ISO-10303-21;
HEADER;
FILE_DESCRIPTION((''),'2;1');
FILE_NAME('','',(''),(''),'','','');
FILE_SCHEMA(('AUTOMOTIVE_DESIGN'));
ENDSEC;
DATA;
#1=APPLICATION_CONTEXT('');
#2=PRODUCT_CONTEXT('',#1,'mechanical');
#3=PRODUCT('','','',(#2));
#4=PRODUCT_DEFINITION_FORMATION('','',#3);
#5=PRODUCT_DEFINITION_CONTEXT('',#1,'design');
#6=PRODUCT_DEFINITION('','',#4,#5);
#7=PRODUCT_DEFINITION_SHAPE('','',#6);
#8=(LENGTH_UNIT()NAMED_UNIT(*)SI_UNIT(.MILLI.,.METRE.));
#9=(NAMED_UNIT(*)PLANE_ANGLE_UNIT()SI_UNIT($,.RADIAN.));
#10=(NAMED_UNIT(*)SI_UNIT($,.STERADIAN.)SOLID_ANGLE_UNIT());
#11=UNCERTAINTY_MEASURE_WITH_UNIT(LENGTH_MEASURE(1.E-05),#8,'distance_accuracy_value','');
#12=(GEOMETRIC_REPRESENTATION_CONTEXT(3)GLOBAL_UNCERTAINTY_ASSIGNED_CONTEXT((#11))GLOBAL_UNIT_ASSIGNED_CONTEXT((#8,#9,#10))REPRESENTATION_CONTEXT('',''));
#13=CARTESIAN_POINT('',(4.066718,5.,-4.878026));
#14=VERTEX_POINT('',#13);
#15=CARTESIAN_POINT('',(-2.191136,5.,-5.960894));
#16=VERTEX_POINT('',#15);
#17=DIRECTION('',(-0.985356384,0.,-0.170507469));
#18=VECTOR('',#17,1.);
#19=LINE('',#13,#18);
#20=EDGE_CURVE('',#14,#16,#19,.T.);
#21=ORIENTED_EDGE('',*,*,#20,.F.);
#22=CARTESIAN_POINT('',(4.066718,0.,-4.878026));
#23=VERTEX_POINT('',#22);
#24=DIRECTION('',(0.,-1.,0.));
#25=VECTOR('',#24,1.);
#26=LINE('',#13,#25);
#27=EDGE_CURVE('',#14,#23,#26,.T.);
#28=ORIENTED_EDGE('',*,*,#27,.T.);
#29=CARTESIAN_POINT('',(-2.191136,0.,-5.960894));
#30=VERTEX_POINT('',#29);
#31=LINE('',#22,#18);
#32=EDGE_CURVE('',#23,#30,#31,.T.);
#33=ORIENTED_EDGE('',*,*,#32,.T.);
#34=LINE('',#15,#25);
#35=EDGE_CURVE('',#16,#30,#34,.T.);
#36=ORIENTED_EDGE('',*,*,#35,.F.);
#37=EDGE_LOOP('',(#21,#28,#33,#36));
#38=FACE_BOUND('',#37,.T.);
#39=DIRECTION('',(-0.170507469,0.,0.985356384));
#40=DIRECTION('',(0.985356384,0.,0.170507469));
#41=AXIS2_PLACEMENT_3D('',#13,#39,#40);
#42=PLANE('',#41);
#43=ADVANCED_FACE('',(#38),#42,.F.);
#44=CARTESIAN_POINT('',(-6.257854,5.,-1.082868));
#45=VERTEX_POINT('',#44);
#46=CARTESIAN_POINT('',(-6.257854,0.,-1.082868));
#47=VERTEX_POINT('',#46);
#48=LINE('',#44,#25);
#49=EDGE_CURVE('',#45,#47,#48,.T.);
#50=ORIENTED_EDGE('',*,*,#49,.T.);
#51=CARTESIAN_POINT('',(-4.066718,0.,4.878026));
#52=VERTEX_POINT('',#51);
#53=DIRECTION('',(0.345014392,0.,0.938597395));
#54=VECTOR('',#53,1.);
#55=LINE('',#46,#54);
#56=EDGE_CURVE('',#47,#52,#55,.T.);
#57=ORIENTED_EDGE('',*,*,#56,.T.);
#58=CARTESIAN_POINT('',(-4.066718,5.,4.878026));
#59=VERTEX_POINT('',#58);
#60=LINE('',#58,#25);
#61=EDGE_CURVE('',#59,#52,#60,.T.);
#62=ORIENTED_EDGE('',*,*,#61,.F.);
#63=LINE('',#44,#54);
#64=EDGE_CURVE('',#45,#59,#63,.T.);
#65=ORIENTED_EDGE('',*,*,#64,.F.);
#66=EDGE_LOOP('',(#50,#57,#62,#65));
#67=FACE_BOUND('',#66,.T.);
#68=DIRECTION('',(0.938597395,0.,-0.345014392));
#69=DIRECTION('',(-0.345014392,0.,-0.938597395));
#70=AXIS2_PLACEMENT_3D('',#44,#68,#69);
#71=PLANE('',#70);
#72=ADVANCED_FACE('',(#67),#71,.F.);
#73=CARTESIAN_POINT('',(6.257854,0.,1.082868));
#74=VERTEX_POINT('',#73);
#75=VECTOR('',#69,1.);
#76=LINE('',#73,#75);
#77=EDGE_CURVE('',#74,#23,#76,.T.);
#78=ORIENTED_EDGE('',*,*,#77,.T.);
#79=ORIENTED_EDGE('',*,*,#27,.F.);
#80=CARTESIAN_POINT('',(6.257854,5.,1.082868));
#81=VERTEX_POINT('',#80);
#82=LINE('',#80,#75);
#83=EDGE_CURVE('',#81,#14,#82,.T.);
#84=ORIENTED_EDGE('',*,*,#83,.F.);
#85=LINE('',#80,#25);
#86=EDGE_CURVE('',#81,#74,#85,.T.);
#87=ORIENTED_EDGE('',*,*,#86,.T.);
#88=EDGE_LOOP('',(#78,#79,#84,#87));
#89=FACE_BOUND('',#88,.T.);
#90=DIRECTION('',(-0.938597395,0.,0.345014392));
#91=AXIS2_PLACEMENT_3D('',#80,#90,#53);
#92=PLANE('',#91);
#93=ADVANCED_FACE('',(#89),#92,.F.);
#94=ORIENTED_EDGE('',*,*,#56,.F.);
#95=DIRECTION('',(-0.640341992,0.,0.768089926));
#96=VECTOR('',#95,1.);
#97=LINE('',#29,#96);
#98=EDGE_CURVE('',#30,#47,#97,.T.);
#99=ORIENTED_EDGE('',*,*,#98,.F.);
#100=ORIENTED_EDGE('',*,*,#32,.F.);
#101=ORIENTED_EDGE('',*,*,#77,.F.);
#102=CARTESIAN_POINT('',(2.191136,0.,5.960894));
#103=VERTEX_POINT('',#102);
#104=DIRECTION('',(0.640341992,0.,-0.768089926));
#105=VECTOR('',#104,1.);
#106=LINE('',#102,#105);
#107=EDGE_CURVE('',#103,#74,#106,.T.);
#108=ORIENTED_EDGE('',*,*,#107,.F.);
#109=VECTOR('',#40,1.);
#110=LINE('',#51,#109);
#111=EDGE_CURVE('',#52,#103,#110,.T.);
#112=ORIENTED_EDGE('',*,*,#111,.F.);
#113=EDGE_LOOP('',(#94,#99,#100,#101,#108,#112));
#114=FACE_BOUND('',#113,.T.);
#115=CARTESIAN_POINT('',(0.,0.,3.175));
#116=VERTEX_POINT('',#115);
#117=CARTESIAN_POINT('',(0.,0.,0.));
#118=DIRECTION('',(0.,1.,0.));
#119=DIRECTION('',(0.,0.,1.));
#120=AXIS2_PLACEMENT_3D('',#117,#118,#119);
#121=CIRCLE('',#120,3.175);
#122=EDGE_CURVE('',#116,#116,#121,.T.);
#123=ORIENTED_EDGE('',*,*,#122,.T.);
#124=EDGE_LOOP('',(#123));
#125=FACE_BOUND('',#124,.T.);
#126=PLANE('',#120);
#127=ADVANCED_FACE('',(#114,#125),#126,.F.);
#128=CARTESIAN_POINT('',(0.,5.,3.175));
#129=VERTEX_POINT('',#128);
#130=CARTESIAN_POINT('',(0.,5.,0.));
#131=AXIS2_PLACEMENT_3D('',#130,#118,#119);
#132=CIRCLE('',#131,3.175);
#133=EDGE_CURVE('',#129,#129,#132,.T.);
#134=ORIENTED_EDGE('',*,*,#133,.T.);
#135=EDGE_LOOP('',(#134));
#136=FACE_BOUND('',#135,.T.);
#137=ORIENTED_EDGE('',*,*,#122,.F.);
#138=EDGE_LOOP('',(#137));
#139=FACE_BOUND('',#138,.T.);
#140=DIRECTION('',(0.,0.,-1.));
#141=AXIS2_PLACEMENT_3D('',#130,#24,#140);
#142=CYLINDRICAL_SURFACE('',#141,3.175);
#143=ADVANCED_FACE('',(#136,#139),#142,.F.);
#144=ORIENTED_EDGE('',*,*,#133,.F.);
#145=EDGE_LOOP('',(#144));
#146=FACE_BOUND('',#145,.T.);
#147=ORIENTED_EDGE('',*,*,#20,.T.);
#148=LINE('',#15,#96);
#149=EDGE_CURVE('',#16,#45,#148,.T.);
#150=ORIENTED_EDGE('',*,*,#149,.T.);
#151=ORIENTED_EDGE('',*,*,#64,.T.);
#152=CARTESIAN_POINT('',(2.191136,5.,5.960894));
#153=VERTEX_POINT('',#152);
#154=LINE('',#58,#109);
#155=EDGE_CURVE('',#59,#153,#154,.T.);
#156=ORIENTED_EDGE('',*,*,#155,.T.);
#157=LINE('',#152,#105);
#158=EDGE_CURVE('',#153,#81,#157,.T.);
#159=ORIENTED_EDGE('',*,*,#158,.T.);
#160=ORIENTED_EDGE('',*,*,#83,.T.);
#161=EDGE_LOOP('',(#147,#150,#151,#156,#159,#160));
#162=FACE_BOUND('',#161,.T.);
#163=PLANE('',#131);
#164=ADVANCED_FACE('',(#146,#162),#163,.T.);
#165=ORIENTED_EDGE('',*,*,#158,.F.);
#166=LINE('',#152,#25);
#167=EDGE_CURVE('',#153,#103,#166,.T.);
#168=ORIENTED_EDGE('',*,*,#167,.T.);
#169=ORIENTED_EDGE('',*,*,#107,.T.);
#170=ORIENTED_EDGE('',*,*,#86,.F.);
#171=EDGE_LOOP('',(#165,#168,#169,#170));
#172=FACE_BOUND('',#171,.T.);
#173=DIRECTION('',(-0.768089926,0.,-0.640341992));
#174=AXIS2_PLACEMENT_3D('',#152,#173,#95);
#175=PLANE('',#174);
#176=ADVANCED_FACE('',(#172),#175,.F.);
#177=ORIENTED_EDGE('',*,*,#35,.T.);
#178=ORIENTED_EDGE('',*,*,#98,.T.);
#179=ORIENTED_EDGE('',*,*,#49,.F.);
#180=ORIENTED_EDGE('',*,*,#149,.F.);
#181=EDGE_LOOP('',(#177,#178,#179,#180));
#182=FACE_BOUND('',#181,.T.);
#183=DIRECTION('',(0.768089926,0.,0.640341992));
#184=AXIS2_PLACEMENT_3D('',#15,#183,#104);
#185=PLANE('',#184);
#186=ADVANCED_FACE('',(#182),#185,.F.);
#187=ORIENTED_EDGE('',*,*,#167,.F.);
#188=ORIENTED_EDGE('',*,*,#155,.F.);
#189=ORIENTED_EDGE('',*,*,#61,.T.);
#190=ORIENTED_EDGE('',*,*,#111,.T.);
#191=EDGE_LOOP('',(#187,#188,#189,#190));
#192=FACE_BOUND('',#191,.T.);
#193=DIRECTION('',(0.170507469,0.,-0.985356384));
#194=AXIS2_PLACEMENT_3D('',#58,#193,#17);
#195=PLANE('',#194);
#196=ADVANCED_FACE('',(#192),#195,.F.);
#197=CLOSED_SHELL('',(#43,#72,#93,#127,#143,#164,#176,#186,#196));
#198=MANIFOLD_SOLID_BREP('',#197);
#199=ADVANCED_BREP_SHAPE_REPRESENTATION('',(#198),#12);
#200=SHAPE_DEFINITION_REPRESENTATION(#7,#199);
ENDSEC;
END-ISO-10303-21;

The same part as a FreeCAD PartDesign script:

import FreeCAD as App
import Part
import Sketcher

V = App.Vector
Q = App.Units.Quantity


def add_polygon(sketch, points):
    """Adds a closed chain of lines whose ends are joined by coincident constraints."""
    first, n = sketch.GeometryCount, len(points)
    for a, b in zip(points, points[1:] + points[:1]):
        sketch.addGeometry(Part.LineSegment(App.Vector(*a, 0), App.Vector(*b, 0)), False)
    for i in range(n):
        sketch.addConstraint(Sketcher.Constraint("Coincident", first + i, 2, first + (i + 1) % n, 1))

doc = App.newDocument("Part")
params = doc.addObject("Spreadsheet::Sheet", "Params")
for row, (alias, value) in enumerate([
    ("sketch1_diameter", "6.35 mm"),
    ("pad1_length", "5 mm"),
], start=1):
    params.set(f"A{row}", alias)
    params.set(f"B{row}", "=" + value)
    params.setAlias(f"B{row}", alias)

body = doc.addObject("PartDesign::Body", "Body")

# Sketch on XZ plane
sketch1 = doc.addObject("Sketcher::SketchObject", "Sketch")
body.addObject(sketch1)
sketch1.AttachmentSupport = (doc.XZ_Plane, [""])
sketch1.MapMode = "FlatFace"
add_polygon(sketch1, [(-6.3, -1.1), (-4.1, 4.9), (2.2, 6), (6.3, 1.1), (4.1, -4.9), (-2.2, -6)])  # lines 0-5
sketch1.addGeometry(Part.Circle(V(0, 0, 0), V(0, 0, 1), 3.2), False)  # 6
sketch1.addConstraint([
    Sketcher.Constraint("Coincident", 6, 3, -1, 1),
    Sketcher.Constraint("Symmetric", 0, 2, 3, 2, -1, 1),
    Sketcher.Constraint("Symmetric", 1, 2, 4, 2, -1, 1),
    Sketcher.Constraint("Symmetric", 2, 2, 5, 2, -1, 1),
    Sketcher.Constraint("Equal", 0, 1),
    Sketcher.Constraint("Equal", 1, 2),
    Sketcher.Constraint("Diameter", 6, Q("6.35 mm")),
    Sketcher.Constraint("DistanceX", 0, 2, 2, 2, Q("10.324571 mm")),
    Sketcher.Constraint("DistanceY", 2, 2, 0, 2, Q("3.795158 mm")),
    Sketcher.Constraint("DistanceY", 3, 2, 1, 2, Q("10.83892 mm")),
    Sketcher.Constraint("DistanceX", 4, 2, 2, 2, Q("8.448989 mm")),
])
sketch1.setExpression("Constraints[12]", "Params.sketch1_diameter")
pad1 = doc.addObject("PartDesign::Pad", "Pad")
body.addObject(pad1)
pad1.Profile = sketch1
pad1.setExpression("Length", "Params.pad1_length")
pad1.Reversed = True

doc.recompute()
